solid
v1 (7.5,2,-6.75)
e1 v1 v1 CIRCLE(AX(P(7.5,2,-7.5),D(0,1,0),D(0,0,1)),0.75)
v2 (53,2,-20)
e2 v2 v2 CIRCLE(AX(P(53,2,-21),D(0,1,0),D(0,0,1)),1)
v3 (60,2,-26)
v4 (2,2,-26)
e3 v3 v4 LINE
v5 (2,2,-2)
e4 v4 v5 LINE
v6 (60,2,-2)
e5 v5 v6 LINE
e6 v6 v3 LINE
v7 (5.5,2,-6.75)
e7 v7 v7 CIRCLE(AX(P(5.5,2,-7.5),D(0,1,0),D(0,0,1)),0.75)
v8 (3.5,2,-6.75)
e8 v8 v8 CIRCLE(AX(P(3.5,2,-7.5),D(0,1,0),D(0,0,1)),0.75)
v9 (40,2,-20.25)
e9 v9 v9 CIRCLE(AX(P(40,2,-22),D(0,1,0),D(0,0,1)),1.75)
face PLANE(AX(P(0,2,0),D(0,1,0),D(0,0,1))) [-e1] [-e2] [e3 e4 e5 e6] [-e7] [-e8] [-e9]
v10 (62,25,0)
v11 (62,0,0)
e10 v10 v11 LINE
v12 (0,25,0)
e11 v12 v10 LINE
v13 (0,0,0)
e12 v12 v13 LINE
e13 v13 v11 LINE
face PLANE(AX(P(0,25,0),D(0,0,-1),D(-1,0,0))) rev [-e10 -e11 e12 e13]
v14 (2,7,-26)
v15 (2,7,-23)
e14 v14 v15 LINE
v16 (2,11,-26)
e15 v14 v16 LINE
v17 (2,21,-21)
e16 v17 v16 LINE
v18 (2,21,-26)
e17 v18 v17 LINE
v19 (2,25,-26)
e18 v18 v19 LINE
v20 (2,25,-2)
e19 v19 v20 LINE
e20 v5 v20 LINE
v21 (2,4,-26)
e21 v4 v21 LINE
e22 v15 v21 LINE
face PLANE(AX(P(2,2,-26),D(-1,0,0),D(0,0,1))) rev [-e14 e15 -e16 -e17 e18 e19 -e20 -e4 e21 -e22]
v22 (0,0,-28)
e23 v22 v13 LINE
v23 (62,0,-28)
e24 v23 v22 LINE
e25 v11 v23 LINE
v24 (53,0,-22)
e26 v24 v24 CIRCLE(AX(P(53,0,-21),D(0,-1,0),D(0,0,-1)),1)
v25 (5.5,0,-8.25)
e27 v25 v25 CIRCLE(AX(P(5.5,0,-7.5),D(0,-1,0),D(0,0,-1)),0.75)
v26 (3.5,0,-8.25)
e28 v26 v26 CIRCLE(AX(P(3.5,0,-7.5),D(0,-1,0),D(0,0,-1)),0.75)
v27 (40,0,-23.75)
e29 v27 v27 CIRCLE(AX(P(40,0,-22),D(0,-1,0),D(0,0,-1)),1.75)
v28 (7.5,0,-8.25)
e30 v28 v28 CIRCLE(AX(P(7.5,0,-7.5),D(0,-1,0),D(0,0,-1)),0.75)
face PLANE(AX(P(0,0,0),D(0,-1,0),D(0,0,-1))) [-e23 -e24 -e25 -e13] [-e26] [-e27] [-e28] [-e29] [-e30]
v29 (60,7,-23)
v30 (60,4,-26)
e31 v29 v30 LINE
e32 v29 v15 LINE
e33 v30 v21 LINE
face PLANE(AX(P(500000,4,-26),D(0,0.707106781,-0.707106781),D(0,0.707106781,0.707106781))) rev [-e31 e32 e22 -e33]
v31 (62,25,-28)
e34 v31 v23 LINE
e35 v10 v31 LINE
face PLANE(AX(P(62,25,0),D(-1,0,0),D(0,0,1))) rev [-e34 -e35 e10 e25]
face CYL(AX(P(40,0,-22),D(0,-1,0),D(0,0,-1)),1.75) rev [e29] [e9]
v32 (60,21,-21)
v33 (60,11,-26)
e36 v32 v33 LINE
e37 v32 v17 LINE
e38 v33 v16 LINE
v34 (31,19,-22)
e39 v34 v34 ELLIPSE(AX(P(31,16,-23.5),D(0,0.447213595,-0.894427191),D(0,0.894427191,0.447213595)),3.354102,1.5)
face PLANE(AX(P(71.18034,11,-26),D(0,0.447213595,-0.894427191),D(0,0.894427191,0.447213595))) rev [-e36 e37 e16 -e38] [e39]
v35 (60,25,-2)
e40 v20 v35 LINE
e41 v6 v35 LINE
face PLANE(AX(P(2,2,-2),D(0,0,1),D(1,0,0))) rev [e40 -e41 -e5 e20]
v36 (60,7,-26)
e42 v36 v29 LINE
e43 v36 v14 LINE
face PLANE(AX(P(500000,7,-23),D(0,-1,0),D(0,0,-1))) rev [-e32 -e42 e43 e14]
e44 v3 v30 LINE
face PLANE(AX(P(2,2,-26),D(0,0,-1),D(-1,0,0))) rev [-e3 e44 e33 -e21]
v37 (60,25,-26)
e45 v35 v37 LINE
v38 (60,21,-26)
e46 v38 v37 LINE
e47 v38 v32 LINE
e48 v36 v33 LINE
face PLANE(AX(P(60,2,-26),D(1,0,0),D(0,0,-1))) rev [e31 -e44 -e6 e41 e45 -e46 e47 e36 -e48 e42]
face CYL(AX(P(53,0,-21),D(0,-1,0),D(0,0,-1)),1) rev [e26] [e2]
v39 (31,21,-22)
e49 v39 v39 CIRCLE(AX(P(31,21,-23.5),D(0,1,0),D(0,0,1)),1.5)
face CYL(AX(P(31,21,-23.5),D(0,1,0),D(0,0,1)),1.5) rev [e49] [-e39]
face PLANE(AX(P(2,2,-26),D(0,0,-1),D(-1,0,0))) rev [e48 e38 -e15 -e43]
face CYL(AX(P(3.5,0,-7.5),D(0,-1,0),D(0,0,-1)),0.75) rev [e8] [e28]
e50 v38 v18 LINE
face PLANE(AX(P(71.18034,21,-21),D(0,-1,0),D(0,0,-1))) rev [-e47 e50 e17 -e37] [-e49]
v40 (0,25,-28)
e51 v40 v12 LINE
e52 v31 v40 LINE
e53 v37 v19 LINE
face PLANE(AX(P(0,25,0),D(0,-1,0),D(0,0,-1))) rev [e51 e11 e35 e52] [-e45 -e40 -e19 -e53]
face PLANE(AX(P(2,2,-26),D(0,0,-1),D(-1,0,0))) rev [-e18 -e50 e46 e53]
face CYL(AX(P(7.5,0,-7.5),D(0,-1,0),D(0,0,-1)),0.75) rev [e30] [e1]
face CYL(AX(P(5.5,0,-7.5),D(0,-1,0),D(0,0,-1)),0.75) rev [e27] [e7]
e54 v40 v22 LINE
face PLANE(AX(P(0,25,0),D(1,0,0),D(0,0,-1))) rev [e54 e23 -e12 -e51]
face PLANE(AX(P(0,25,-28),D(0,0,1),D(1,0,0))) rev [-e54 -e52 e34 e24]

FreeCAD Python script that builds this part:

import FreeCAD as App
import Part
import Sketcher

V = App.Vector


def add_polygon(sketch, points):
    """Adds a closed chain of lines whose ends are joined by coincident constraints."""
    first, n = sketch.GeometryCount, len(points)
    for a, b in zip(points, points[1:] + points[:1]):
        sketch.addGeometry(Part.LineSegment(App.Vector(*a, 0), App.Vector(*b, 0)), False)
    for i in range(n):
        sketch.addConstraint(Sketcher.Constraint("Coincident", first + i, 2, first + (i + 1) % n, 1))

doc = App.newDocument("Part")
params = doc.addObject("Spreadsheet::Sheet", "Params")
for row, (alias, value) in enumerate([
    ("sketch1_width", "62 mm"),
    ("sketch1_height", "28 mm"),
    ("pad1_length", "25 mm"),
    ("sketch2_width", "58 mm"),
    ("sketch2_height", "24 mm"),
    ("pocket1_length", "23 mm"),
    ("sketch3_width", "10 mm"),
    ("sketch3_height", "5 mm"),
    ("pad2_length", "58 mm"),
    ("sketch4_diameter", "1.5 mm"),
    ("hole_diameter", "1.5 mm"),
    ("sketch5_diameter", "2 mm"),
    ("hole2_diameter", "2 mm"),
    ("hole2_depth", "2 mm"),
    ("sketch6_diameter", "3.5 mm"),
    ("hole3_diameter", "3.5 mm"),
    ("hole3_depth", "2 mm"),
    ("sketch7_width", "3 mm"),
    ("sketch8_diameter", "3 mm"),
], start=1):
    params.set(f"A{row}", alias)
    params.set(f"B{row}", "=" + value)
    params.setAlias(f"B{row}", alias)

body = doc.addObject("PartDesign::Body", "Body")

sketch1 = body.newObject("Sketcher::SketchObject", "Sketch")
sketch1.AttachmentSupport = (doc.getObject("XZ_Plane"), [""])
sketch1.MapMode = "FlatFace"
add_polygon(sketch1, [(0, -28), (0, 0), (62, 0), (62, -28)])
sketch1.addConstraint([
    Sketcher.Constraint("Vertical", 0),
    Sketcher.Constraint("Horizontal", 1),
    Sketcher.Constraint("Vertical", 2),
    Sketcher.Constraint("Horizontal", 3),
    Sketcher.Constraint("Coincident", 0, 2, -1, 1),
    Sketcher.Constraint("DistanceX", 1, 1, 1, 2, 62.0),
    Sketcher.Constraint("DistanceY", 0, 1, 0, 2, 28.0),
])
sketch1.setExpression("Constraints[9]", "Params.sketch1_width")
sketch1.setExpression("Constraints[10]", "Params.sketch1_height")
pad1 = body.newObject("PartDesign::Pad", "Pad")
pad1.Profile = sketch1
pad1.setExpression("Length", "Params.pad1_length")
pad1.Reversed = True

sketch2 = body.newObject("Sketcher::SketchObject", "Sketch001")
sketch2.AttachmentSupport = (doc.getObject("XZ_Plane"), [""])
sketch2.MapMode = "FlatFace"
sketch2.AttachmentOffset = App.Placement(V(0, 0, -25), App.Rotation())
add_polygon(sketch2, [(2, -26), (2, -2), (60, -2), (60, -26)])
sketch2.addConstraint([
    Sketcher.Constraint("Vertical", 0),
    Sketcher.Constraint("Horizontal", 1),
    Sketcher.Constraint("Vertical", 2),
    Sketcher.Constraint("Horizontal", 3),
    Sketcher.Constraint("DistanceX", 1, 1, 1, 2, 58.0),
    Sketcher.Constraint("DistanceY", 0, 1, 0, 2, 24.0),
    Sketcher.Constraint("DistanceX", -1, 1, 0, 2, 2.0),
    Sketcher.Constraint("DistanceY", 0, 2, -1, 1, 2.0),
])
sketch2.setExpression("Constraints[8]", "Params.sketch2_width")
sketch2.setExpression("Constraints[9]", "Params.sketch2_height")
pocket1 = body.newObject("PartDesign::Pocket", "Pocket")
pocket1.Profile = sketch2
pocket1.setExpression("Length", "Params.pocket1_length")
pocket1.Reversed = True

sketch3 = body.newObject("Sketcher::SketchObject", "Sketch002")
sketch3.AttachmentSupport = (doc.getObject("YZ_Plane"), [""])
sketch3.MapMode = "FlatFace"
sketch3.AttachmentOffset = App.Placement(V(0, 0, 2), App.Rotation())
add_polygon(sketch3, [(21, -21), (11, -26), (21, -26)])
sketch3.addConstraint([
    Sketcher.Constraint("Horizontal", 1),
    Sketcher.Constraint("Vertical", 2),
    Sketcher.Constraint("DistanceX", 1, 1, 1, 2, 10.0),
    Sketcher.Constraint("DistanceY", 2, 1, 2, 2, 5.0),
    Sketcher.Constraint("DistanceX", -1, 1, 0, 2, 11.0),
    Sketcher.Constraint("DistanceY", 0, 2, -1, 1, 26.0),
])
sketch3.setExpression("Constraints[5]", "Params.sketch3_width")
sketch3.setExpression("Constraints[6]", "Params.sketch3_height")
pad2 = body.newObject("PartDesign::Pad", "Pad001")
pad2.Profile = sketch3
pad2.setExpression("Length", "Params.pad2_length")

sketch4 = body.newObject("Sketcher::SketchObject", "Sketch003")
sketch4.AttachmentSupport = (doc.getObject("XZ_Plane"), [""])
sketch4.MapMode = "FlatFace"
sketch4.addGeometry([
    Part.Circle(V(7.5, -7.5, 0), V(0, 0, 1), 0.75),
    Part.Circle(V(5.5, -7.5, 0), V(0, 0, 1), 0.75),
    Part.Circle(V(3.5, -7.5, 0), V(0, 0, 1), 0.75),
], False)
sketch4.addConstraint([
    Sketcher.Constraint("Equal", 0, 1),
    Sketcher.Constraint("Equal", 1, 2),
    Sketcher.Constraint("Horizontal", 0, 3, 1, 3),
    Sketcher.Constraint("Horizontal", 1, 3, 2, 3),
    Sketcher.Constraint("Diameter", 0, 1.5),
    Sketcher.Constraint("DistanceX", 1, 3, 0, 3, 2.0),
    Sketcher.Constraint("DistanceX", 2, 3, 1, 3, 2.0),
    Sketcher.Constraint("DistanceX", -1, 1, 0, 3, 7.5),
    Sketcher.Constraint("DistanceY", 0, 3, -1, 1, 7.5),
])
sketch4.setExpression("Constraints[4]", "Params.sketch4_diameter")
doc.recompute()
hole = body.newObject("PartDesign::Hole", "Hole")
hole.Profile = sketch4
hole.ThreadType = "None"
hole.setExpression("Diameter", "Params.hole_diameter")
hole.DepthType = "ThroughAll"

sketch5 = body.newObject("Sketcher::SketchObject", "Sketch004")
sketch5.AttachmentSupport = (doc.getObject("XZ_Plane"), [""])
sketch5.MapMode = "FlatFace"
sketch5.addGeometry(Part.Circle(V(53, -21, 0), V(0, 0, 1), 1), False)
sketch5.addConstraint([
    Sketcher.Constraint("Diameter", 0, 2.0),
    Sketcher.Constraint("DistanceX", -1, 1, 0, 3, 53.0),
    Sketcher.Constraint("DistanceY", 0, 3, -1, 1, 21.0),
])
sketch5.setExpression("Constraints[0]", "Params.sketch5_diameter")
doc.recompute()
hole2 = body.newObject("PartDesign::Hole", "Hole001")
hole2.Profile = sketch5
hole2.ThreadType = "None"
hole2.setExpression("Diameter", "Params.hole2_diameter")
hole2.DepthType = "Dimension"
hole2.setExpression("Depth", "Params.hole2_depth")
hole2.DrillPoint = "Flat"

sketch6 = body.newObject("Sketcher::SketchObject", "Sketch005")
sketch6.AttachmentSupport = (doc.getObject("XZ_Plane"), [""])
sketch6.MapMode = "FlatFace"
sketch6.addGeometry(Part.Circle(V(40, -22, 0), V(0, 0, 1), 1.75), False)
sketch6.addConstraint([
    Sketcher.Constraint("Diameter", 0, 3.5),
    Sketcher.Constraint("DistanceX", -1, 1, 0, 3, 40.0),
    Sketcher.Constraint("DistanceY", 0, 3, -1, 1, 22.0),
])
sketch6.setExpression("Constraints[0]", "Params.sketch6_diameter")
doc.recompute()
hole3 = body.newObject("PartDesign::Hole", "Hole002")
hole3.Profile = sketch6
hole3.ThreadType = "None"
hole3.setExpression("Diameter", "Params.hole3_diameter")
hole3.DepthType = "Dimension"
hole3.setExpression("Depth", "Params.hole3_depth")
hole3.DrillPoint = "Flat"

sketch7 = body.newObject("Sketcher::SketchObject", "Sketch006")
sketch7.AttachmentSupport = (doc.getObject("YZ_Plane"), [""])
sketch7.MapMode = "FlatFace"
sketch7.AttachmentOffset = App.Placement(V(0, 0, 2), App.Rotation())
add_polygon(sketch7, [(7, -23), (4, -26), (7, -26)])
sketch7.addConstraint([
    Sketcher.Constraint("Horizontal", 1),
    Sketcher.Constraint("Vertical", 2),
    Sketcher.Constraint("Equal", 1, 2),
    Sketcher.Constraint("DistanceX", 1, 1, 1, 2, 3.0),
    Sketcher.Constraint("DistanceX", -1, 1, 0, 2, 4.0),
    Sketcher.Constraint("DistanceY", 0, 2, -1, 1, 26.0),
])
sketch7.setExpression("Constraints[6]", "Params.sketch7_width")
pad3 = body.newObject("PartDesign::Pad", "Pad002")
pad3.Profile = sketch7
pad3.Type = "UpToFirst"

sketch8 = body.newObject("Sketcher::SketchObject", "Sketch007")
sketch8.AttachmentSupport = (doc.getObject("XZ_Plane"), [""])
sketch8.MapMode = "FlatFace"
sketch8.AttachmentOffset = App.Placement(V(0, 0, -21), App.Rotation())
sketch8.addGeometry(Part.Circle(V(31, -23.5, 0), V(0, 0, 1), 1.5), False)
sketch8.addConstraint([
    Sketcher.Constraint("Diameter", 0, 3.0),
    Sketcher.Constraint("DistanceX", -1, 1, 0, 3, 31.0),
    Sketcher.Constraint("DistanceY", 0, 3, -1, 1, 23.5),
])
sketch8.setExpression("Constraints[0]", "Params.sketch8_diameter")
pocket2 = body.newObject("PartDesign::Pocket", "Pocket001")
pocket2.Profile = sketch8
pocket2.Type = "UpToFirst"
pocket2.Reversed = True

doc.recompute()
